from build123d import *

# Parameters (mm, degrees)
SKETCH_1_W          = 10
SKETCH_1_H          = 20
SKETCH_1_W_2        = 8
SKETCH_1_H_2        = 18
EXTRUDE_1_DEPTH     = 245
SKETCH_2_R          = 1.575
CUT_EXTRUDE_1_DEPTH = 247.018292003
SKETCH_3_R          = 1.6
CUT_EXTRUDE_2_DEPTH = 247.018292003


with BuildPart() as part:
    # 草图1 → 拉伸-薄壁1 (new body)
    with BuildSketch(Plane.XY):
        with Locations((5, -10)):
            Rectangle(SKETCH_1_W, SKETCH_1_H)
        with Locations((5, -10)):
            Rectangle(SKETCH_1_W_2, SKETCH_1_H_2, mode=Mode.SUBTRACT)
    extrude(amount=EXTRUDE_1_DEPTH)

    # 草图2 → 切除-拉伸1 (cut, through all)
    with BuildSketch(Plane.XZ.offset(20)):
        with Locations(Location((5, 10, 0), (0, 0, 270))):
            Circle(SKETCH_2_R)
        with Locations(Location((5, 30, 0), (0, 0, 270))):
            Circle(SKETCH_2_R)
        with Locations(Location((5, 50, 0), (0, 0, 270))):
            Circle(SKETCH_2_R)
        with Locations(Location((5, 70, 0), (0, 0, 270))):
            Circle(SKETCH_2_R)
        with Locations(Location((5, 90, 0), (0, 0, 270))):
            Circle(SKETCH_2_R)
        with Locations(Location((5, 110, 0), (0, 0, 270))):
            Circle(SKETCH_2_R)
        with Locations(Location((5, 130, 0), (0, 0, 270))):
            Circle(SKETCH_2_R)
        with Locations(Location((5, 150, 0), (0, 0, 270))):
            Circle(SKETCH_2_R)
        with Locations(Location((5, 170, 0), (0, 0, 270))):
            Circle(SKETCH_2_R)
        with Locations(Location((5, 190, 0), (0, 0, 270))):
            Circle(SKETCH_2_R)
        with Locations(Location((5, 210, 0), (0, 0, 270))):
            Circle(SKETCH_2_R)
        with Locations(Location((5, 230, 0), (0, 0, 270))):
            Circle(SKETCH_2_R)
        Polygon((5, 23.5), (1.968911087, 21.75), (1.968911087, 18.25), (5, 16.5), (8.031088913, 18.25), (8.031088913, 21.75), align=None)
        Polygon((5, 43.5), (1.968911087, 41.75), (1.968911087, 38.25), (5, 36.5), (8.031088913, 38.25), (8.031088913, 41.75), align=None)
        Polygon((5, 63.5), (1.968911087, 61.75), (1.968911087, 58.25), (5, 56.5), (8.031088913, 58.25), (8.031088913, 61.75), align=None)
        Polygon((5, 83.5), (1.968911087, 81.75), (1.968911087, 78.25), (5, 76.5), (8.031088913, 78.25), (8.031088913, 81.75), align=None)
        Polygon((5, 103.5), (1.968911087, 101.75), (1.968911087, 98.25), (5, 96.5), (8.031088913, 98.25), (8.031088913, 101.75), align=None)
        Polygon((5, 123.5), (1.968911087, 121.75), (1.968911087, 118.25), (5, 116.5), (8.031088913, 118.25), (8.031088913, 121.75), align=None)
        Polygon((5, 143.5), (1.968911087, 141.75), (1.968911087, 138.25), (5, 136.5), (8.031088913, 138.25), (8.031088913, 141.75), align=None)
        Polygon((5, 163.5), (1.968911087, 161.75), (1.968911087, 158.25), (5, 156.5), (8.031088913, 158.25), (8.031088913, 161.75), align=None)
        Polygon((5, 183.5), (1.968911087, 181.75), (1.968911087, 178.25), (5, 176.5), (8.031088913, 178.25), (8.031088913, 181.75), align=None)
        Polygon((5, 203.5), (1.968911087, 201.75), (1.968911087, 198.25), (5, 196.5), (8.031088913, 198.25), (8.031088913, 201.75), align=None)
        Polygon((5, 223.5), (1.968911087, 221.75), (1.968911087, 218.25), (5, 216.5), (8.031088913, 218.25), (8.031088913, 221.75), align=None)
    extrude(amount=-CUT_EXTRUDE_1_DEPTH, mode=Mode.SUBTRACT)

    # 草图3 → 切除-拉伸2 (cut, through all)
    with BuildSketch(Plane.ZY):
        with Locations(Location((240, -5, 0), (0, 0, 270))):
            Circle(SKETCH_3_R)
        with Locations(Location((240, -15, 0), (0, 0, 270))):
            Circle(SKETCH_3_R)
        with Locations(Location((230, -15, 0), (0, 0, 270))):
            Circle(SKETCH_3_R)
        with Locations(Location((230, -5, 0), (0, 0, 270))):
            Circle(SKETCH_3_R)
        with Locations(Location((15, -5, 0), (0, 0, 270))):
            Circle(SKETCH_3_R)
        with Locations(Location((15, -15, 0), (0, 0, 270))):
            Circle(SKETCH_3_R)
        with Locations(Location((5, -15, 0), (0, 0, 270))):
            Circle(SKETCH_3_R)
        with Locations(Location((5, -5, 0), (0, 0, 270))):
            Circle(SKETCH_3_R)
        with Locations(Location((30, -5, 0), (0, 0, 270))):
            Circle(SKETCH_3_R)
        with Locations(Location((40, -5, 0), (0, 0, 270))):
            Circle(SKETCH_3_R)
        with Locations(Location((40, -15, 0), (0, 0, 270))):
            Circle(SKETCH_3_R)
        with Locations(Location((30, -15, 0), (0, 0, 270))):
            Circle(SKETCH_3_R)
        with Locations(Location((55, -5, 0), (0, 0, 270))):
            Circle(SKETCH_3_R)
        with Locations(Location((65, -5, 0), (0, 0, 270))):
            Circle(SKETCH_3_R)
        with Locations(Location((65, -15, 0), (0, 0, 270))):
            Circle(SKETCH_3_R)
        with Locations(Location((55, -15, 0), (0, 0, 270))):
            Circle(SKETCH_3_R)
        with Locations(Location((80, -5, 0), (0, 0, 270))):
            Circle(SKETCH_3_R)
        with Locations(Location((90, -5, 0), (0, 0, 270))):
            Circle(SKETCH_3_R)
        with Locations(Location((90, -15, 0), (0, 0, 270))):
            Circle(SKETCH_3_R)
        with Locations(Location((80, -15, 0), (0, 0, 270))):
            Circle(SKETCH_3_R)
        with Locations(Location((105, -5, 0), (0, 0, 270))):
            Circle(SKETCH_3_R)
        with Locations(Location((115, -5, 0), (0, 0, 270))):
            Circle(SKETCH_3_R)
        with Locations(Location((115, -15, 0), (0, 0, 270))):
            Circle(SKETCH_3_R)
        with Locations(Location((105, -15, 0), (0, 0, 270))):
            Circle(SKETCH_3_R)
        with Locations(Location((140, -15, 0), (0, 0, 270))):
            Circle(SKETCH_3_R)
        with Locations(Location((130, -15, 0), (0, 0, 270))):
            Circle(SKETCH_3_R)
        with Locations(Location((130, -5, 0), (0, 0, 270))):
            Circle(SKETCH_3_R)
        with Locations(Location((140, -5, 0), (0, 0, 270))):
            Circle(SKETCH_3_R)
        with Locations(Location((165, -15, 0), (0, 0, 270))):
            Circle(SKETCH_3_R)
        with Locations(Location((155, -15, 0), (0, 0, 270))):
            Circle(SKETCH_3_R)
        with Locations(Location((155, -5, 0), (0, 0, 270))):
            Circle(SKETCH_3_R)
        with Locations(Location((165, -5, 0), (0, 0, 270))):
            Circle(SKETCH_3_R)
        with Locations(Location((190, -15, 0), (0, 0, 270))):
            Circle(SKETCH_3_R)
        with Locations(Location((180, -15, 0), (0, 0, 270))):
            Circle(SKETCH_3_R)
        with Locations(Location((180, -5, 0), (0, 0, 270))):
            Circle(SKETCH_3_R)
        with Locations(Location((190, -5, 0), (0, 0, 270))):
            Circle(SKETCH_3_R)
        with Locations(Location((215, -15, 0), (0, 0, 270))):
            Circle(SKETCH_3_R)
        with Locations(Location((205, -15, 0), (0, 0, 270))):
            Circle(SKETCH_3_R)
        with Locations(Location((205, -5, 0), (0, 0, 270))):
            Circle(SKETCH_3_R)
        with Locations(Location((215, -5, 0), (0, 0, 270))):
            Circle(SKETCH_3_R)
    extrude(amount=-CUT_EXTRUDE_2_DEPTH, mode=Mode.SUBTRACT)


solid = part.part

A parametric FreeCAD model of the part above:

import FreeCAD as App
import Part
import Sketcher

V = App.Vector
Q = App.Units.Quantity

doc = App.newDocument("Part")
body = doc.addObject("PartDesign::Body", "Body")

sketch1 = body.newObject("Sketcher::SketchObject", "Sketch")
sketch1.AttachmentSupport = (doc.getObject("XY_Plane"), [""])
sketch1.MapMode = "FlatFace"
sketch1.addGeometry([
    Part.LineSegment(V(0, 0, 0), V(0, -20, 0)),
    Part.LineSegment(V(0, -20, 0), V(10, -20, 0)),
    Part.LineSegment(V(10, -20, 0), V(10, 0, 0)),
    Part.LineSegment(V(10, 0, 0), V(0, 0, 0)),
    Part.LineSegment(V(9, -19, 0), V(1, -19, 0)),
    Part.LineSegment(V(1, -19, 0), V(1, -1, 0)),
    Part.LineSegment(V(1, -1, 0), V(9, -1, 0)),
    Part.LineSegment(V(9, -1, 0), V(9, -19, 0)),
], False)
sketch1.addConstraint([
    Sketcher.Constraint("Coincident", 0, 2, 1, 1),
    Sketcher.Constraint("Coincident", 1, 2, 2, 1),
    Sketcher.Constraint("Coincident", 2, 2, 3, 1),
    Sketcher.Constraint("Coincident", 3, 2, 0, 1),
    Sketcher.Constraint("Coincident", 4, 2, 5, 1),
    Sketcher.Constraint("Coincident", 5, 2, 6, 1),
    Sketcher.Constraint("Coincident", 6, 2, 7, 1),
    Sketcher.Constraint("Coincident", 7, 2, 4, 1),
    Sketcher.Constraint("Vertical", 0),
    Sketcher.Constraint("Horizontal", 1),
    Sketcher.Constraint("Vertical", 2),
    Sketcher.Constraint("Horizontal", 3),
    Sketcher.Constraint("Horizontal", 4),
    Sketcher.Constraint("Vertical", 5),
    Sketcher.Constraint("Horizontal", 6),
    Sketcher.Constraint("Vertical", 7),
    Sketcher.Constraint("Coincident", 3, 2, -1, 1),
    Sketcher.Constraint("DistanceX", 1, 1, 1, 2, 10.0),
    Sketcher.Constraint("DistanceX", 4, 2, 4, 1, 8.0),
    Sketcher.Constraint("DistanceY", 0, 2, 0, 1, 20.0),
    Sketcher.Constraint("DistanceY", 5, 1, 5, 2, 18.0),
    Sketcher.Constraint("DistanceX", -1, 1, 4, 2, 1.0),
    Sketcher.Constraint("DistanceY", 4, 2, -1, 1, 19.0),
])
pad1 = body.newObject("PartDesign::Pad", "Pad")
pad1.Profile = sketch1
pad1.Length = 245

sketch2 = body.newObject("Sketcher::SketchObject", "Sketch001")
sketch2.AttachmentSupport = (doc.getObject("XZ_Plane"), [""])
sketch2.MapMode = "FlatFace"
sketch2.AttachmentOffset = App.Placement(V(0, 0, 20), App.Rotation())
sketch2.addGeometry([
    Part.Circle(V(5, 10, 0), V(0, 0, 1), 1.6),
    Part.Circle(V(5, 30, 0), V(0, 0, 1), 1.6),
    Part.Circle(V(5, 50, 0), V(0, 0, 1), 1.6),
    Part.Circle(V(5, 70, 0), V(0, 0, 1), 1.6),
    Part.Circle(V(5, 90, 0), V(0, 0, 1), 1.6),
    Part.Circle(V(5, 110, 0), V(0, 0, 1), 1.6),
    Part.Circle(V(5, 130, 0), V(0, 0, 1), 1.6),
    Part.Circle(V(5, 150, 0), V(0, 0, 1), 1.6),
    Part.Circle(V(5, 170, 0), V(0, 0, 1), 1.6),
    Part.Circle(V(5, 190, 0), V(0, 0, 1), 1.6),
    Part.Circle(V(5, 210, 0), V(0, 0, 1), 1.6),
    Part.Circle(V(5, 230, 0), V(0, 0, 1), 1.6),
    Part.LineSegment(V(5, 23.5, 0), V(2, 21.8, 0)),
    Part.LineSegment(V(2, 21.8, 0), V(2, 18.2, 0)),
    Part.LineSegment(V(2, 18.2, 0), V(5, 16.5, 0)),
    Part.LineSegment(V(5, 16.5, 0), V(8, 18.2, 0)),
    Part.LineSegment(V(8, 18.2, 0), V(8, 21.8, 0)),
    Part.LineSegment(V(8, 21.8, 0), V(5, 23.5, 0)),
    Part.LineSegment(V(5, 43.5, 0), V(2, 41.8, 0)),
    Part.LineSegment(V(2, 41.8, 0), V(2, 38.2, 0)),
    Part.LineSegment(V(2, 38.2, 0), V(5, 36.5, 0)),
    Part.LineSegment(V(5, 36.5, 0), V(8, 38.2, 0)),
    Part.LineSegment(V(8, 38.2, 0), V(8, 41.8, 0)),
    Part.LineSegment(V(8, 41.8, 0), V(5, 43.5, 0)),
    Part.LineSegment(V(5, 63.5, 0), V(2, 61.8, 0)),
    Part.LineSegment(V(2, 61.8, 0), V(2, 58.2, 0)),
    Part.LineSegment(V(2, 58.2, 0), V(5, 56.5, 0)),
    Part.LineSegment(V(5, 56.5, 0), V(8, 58.2, 0)),
    Part.LineSegment(V(8, 58.2, 0), V(8, 61.8, 0)),
    Part.LineSegment(V(8, 61.8, 0), V(5, 63.5, 0)),
    Part.LineSegment(V(5, 83.5, 0), V(2, 81.8, 0)),
    Part.LineSegment(V(2, 81.8, 0), V(2, 78.2, 0)),
    Part.LineSegment(V(2, 78.2, 0), V(5, 76.5, 0)),
    Part.LineSegment(V(5, 76.5, 0), V(8, 78.2, 0)),
    Part.LineSegment(V(8, 78.2, 0), V(8, 81.8, 0)),
    Part.LineSegment(V(8, 81.8, 0), V(5, 83.5, 0)),
    Part.LineSegment(V(5, 103.5, 0), V(2, 101.8, 0)),
    Part.LineSegment(V(2, 101.8, 0), V(2, 98.2, 0)),
    Part.LineSegment(V(2, 98.2, 0), V(5, 96.5, 0)),
    Part.LineSegment(V(5, 96.5, 0), V(8, 98.2, 0)),
    Part.LineSegment(V(8, 98.2, 0), V(8, 101.8, 0)),
    Part.LineSegment(V(8, 101.8, 0), V(5, 103.5, 0)),
    Part.LineSegment(V(5, 123.5, 0), V(2, 121.8, 0)),
    Part.LineSegment(V(2, 121.8, 0), V(2, 118.2, 0)),
    Part.LineSegment(V(2, 118.2, 0), V(5, 116.5, 0)),
    Part.LineSegment(V(5, 116.5, 0), V(8, 118.2, 0)),
    Part.LineSegment(V(8, 118.2, 0), V(8, 121.8, 0)),
    Part.LineSegment(V(8, 121.8, 0), V(5, 123.5, 0)),
    Part.LineSegment(V(5, 143.5, 0), V(2, 141.8, 0)),
    Part.LineSegment(V(2, 141.8, 0), V(2, 138.2, 0)),
    Part.LineSegment(V(2, 138.2, 0), V(5, 136.5, 0)),
    Part.LineSegment(V(5, 136.5, 0), V(8, 138.2, 0)),
    Part.LineSegment(V(8, 138.2, 0), V(8, 141.8, 0)),
    Part.LineSegment(V(8, 141.8, 0), V(5, 143.5, 0)),
    Part.LineSegment(V(5, 163.5, 0), V(2, 161.8, 0)),
    Part.LineSegment(V(2, 161.8, 0), V(2, 158.2, 0)),
    Part.LineSegment(V(2, 158.2, 0), V(5, 156.5, 0)),
    Part.LineSegment(V(5, 156.5, 0), V(8, 158.2, 0)),
    Part.LineSegment(V(8, 158.2, 0), V(8, 161.8, 0)),
    Part.LineSegment(V(8, 161.8, 0), V(5, 163.5, 0)),
    Part.LineSegment(V(5, 183.5, 0), V(2, 181.8, 0)),
    Part.LineSegment(V(2, 181.8, 0), V(2, 178.2, 0)),
    Part.LineSegment(V(2, 178.2, 0), V(5, 176.5, 0)),
    Part.LineSegment(V(5, 176.5, 0), V(8, 178.2, 0)),
    Part.LineSegment(V(8, 178.2, 0), V(8, 181.8, 0)),
    Part.LineSegment(V(8, 181.8, 0), V(5, 183.5, 0)),
    Part.LineSegment(V(5, 203.5, 0), V(2, 201.8, 0)),
    Part.LineSegment(V(2, 201.8, 0), V(2, 198.2, 0)),
    Part.LineSegment(V(2, 198.2, 0), V(5, 196.5, 0)),
    Part.LineSegment(V(5, 196.5, 0), V(8, 198.2, 0)),
    Part.LineSegment(V(8, 198.2, 0), V(8, 201.8, 0)),
    Part.LineSegment(V(8, 201.8, 0), V(5, 203.5, 0)),
    Part.LineSegment(V(5, 223.5, 0), V(2, 221.8, 0)),
    Part.LineSegment(V(2, 221.8, 0), V(2, 218.2, 0)),
    Part.LineSegment(V(2, 218.2, 0), V(5, 216.5, 0)),
    Part.LineSegment(V(5, 216.5, 0), V(8, 218.2, 0)),
    Part.LineSegment(V(8, 218.2, 0), V(8, 221.8, 0)),
    Part.LineSegment(V(8, 221.8, 0), V(5, 223.5, 0)),
], False)
sketch2.addConstraint([
    Sketcher.Constraint("Coincident", 12, 2, 13, 1),
    Sketcher.Constraint("Coincident", 13, 2, 14, 1),
    Sketcher.Constraint("Coincident", 14, 2, 15, 1),
    Sketcher.Constraint("Coincident", 15, 2, 16, 1),
    Sketcher.Constraint("Coincident", 16, 2, 17, 1),
    Sketcher.Constraint("Coincident", 17, 2, 12, 1),
    Sketcher.Constraint("Coincident", 18, 2, 19, 1),
    Sketcher.Constraint("Coincident", 19, 2, 20, 1),
    Sketcher.Constraint("Coincident", 20, 2, 21, 1),
    Sketcher.Constraint("Coincident", 21, 2, 22, 1),
    Sketcher.Constraint("Coincident", 22, 2, 23, 1),
    Sketcher.Constraint("Coincident", 23, 2, 18, 1),
    Sketcher.Constraint("Coincident", 24, 2, 25, 1),
    Sketcher.Constraint("Coincident", 25, 2, 26, 1),
    Sketcher.Constraint("Coincident", 26, 2, 27, 1),
    Sketcher.Constraint("Coincident", 27, 2, 28, 1),
    Sketcher.Constraint("Coincident", 28, 2, 29, 1),
    Sketcher.Constraint("Coincident", 29, 2, 24, 1),
    Sketcher.Constraint("Coincident", 30, 2, 31, 1),
    Sketcher.Constraint("Coincident", 31, 2, 32, 1),
    Sketcher.Constraint("Coincident", 32, 2, 33, 1),
    Sketcher.Constraint("Coincident", 33, 2, 34, 1),
    Sketcher.Constraint("Coincident", 34, 2, 35, 1),
    Sketcher.Constraint("Coincident", 35, 2, 30, 1),
    Sketcher.Constraint("Coincident", 36, 2, 37, 1),
    Sketcher.Constraint("Coincident", 37, 2, 38, 1),
    Sketcher.Constraint("Coincident", 38, 2, 39, 1),
    Sketcher.Constraint("Coincident", 39, 2, 40, 1),
    Sketcher.Constraint("Coincident", 40, 2, 41, 1),
    Sketcher.Constraint("Coincident", 41, 2, 36, 1),
    Sketcher.Constraint("Coincident", 42, 2, 43, 1),
    Sketcher.Constraint("Coincident", 43, 2, 44, 1),
    Sketcher.Constraint("Coincident", 44, 2, 45, 1),
    Sketcher.Constraint("Coincident", 45, 2, 46, 1),
    Sketcher.Constraint("Coincident", 46, 2, 47, 1),
    Sketcher.Constraint("Coincident", 47, 2, 42, 1),
    Sketcher.Constraint("Coincident", 48, 2, 49, 1),
    Sketcher.Constraint("Coincident", 49, 2, 50, 1),
    Sketcher.Constraint("Coincident", 50, 2, 51, 1),
    Sketcher.Constraint("Coincident", 51, 2, 52, 1),
    Sketcher.Constraint("Coincident", 52, 2, 53, 1),
    Sketcher.Constraint("Coincident", 53, 2, 48, 1),
    Sketcher.Constraint("Coincident", 54, 2, 55, 1),
    Sketcher.Constraint("Coincident", 55, 2, 56, 1),
    Sketcher.Constraint("Coincident", 56, 2, 57, 1),
    Sketcher.Constraint("Coincident", 57, 2, 58, 1),
    Sketcher.Constraint("Coincident", 58, 2, 59, 1),
    Sketcher.Constraint("Coincident", 59, 2, 54, 1),
    Sketcher.Constraint("Coincident", 60, 2, 61, 1),
    Sketcher.Constraint("Coincident", 61, 2, 62, 1),
    Sketcher.Constraint("Coincident", 62, 2, 63, 1),
    Sketcher.Constraint("Coincident", 63, 2, 64, 1),
    Sketcher.Constraint("Coincident", 64, 2, 65, 1),
    Sketcher.Constraint("Coincident", 65, 2, 60, 1),
    Sketcher.Constraint("Coincident", 66, 2, 67, 1),
    Sketcher.Constraint("Coincident", 67, 2, 68, 1),
    Sketcher.Constraint("Coincident", 68, 2, 69, 1),
    Sketcher.Constraint("Coincident", 69, 2, 70, 1),
    Sketcher.Constraint("Coincident", 70, 2, 71, 1),
    Sketcher.Constraint("Coincident", 71, 2, 66, 1),
    Sketcher.Constraint("Coincident", 72, 2, 73, 1),
    Sketcher.Constraint("Coincident", 73, 2, 74, 1),
    Sketcher.Constraint("Coincident", 74, 2, 75, 1),
    Sketcher.Constraint("Coincident", 75, 2, 76, 1),
    Sketcher.Constraint("Coincident", 76, 2, 77, 1),
    Sketcher.Constraint("Coincident", 77, 2, 72, 1),
    Sketcher.Constraint("Vertical", 13),
    Sketcher.Constraint("Vertical", 16),
    Sketcher.Constraint("Vertical", 19),
    Sketcher.Constraint("Vertical", 22),
    Sketcher.Constraint("Vertical", 25),
    Sketcher.Constraint("Vertical", 28),
    Sketcher.Constraint("Vertical", 31),
    Sketcher.Constraint("Vertical", 34),
    Sketcher.Constraint("Vertical", 37),
    Sketcher.Constraint("Vertical", 40),
    Sketcher.Constraint("Vertical", 43),
    Sketcher.Constraint("Vertical", 46),
    Sketcher.Constraint("Vertical", 49),
    Sketcher.Constraint("Vertical", 52),
    Sketcher.Constraint("Vertical", 55),
    Sketcher.Constraint("Vertical", 58),
    Sketcher.Constraint("Vertical", 61),
    Sketcher.Constraint("Vertical", 64),
    Sketcher.Constraint("Vertical", 67),
    Sketcher.Constraint("Vertical", 70),
    Sketcher.Constraint("Vertical", 73),
    Sketcher.Constraint("Vertical", 76),
    Sketcher.Constraint("Equal", 0, 1),
    Sketcher.Constraint("Equal", 1, 2),
    Sketcher.Constraint("Equal", 2, 3),
    Sketcher.Constraint("Equal", 3, 4),
    Sketcher.Constraint("Equal", 4, 5),
    Sketcher.Constraint("Equal", 5, 6),
    Sketcher.Constraint("Equal", 6, 7),
    Sketcher.Constraint("Equal", 7, 8),
    Sketcher.Constraint("Equal", 8, 9),
    Sketcher.Constraint("Equal", 9, 10),
    Sketcher.Constraint("Equal", 10, 11),
    Sketcher.Constraint("Parallel", 12, 15),
    Sketcher.Constraint("Parallel", 14, 17),
    Sketcher.Constraint("Parallel", 15, 18),
    Sketcher.Constraint("Parallel", 17, 20),
    Sketcher.Constraint("Parallel", 18, 21),
    Sketcher.Constraint("Parallel", 20, 23),
    Sketcher.Constraint("Parallel", 21, 24),
    Sketcher.Constraint("Parallel", 23, 26),
    Sketcher.Constraint("Parallel", 24, 27),
    Sketcher.Constraint("Parallel", 26, 29),
    Sketcher.Constraint("Parallel", 27, 30),
    Sketcher.Constraint("Parallel", 29, 32),
    Sketcher.Constraint("Parallel", 30, 33),
    Sketcher.Constraint("Parallel", 32, 35),
    Sketcher.Constraint("Parallel", 33, 36),
    Sketcher.Constraint("Parallel", 35, 38),
    Sketcher.Constraint("Parallel", 36, 39),
    Sketcher.Constraint("Parallel", 38, 41),
    Sketcher.Constraint("Parallel", 39, 42),
    Sketcher.Constraint("Parallel", 41, 44),
    Sketcher.Constraint("Parallel", 42, 45),
    Sketcher.Constraint("Parallel", 44, 47),
    Sketcher.Constraint("Parallel", 45, 48),
    Sketcher.Constraint("Parallel", 47, 50),
    Sketcher.Constraint("Parallel", 48, 51),
    Sketcher.Constraint("Parallel", 50, 53),
    Sketcher.Constraint("Parallel", 51, 54),
    Sketcher.Constraint("Parallel", 53, 56),
    Sketcher.Constraint("Parallel", 54, 57),
    Sketcher.Constraint("Parallel", 56, 59),
    Sketcher.Constraint("Parallel", 57, 60),
    Sketcher.Constraint("Parallel", 59, 62),
    Sketcher.Constraint("Parallel", 60, 63),
    Sketcher.Constraint("Parallel", 62, 65),
    Sketcher.Constraint("Parallel", 63, 66),
    Sketcher.Constraint("Parallel", 65, 68),
    Sketcher.Constraint("Parallel", 66, 69),
    Sketcher.Constraint("Parallel", 68, 71),
    Sketcher.Constraint("Parallel", 69, 72),
    Sketcher.Constraint("Parallel", 71, 74),
    Sketcher.Constraint("Parallel", 72, 75),
    Sketcher.Constraint("Parallel", 74, 77),
    Sketcher.Constraint("Horizontal", 13, 2, 15, 2),
    Sketcher.Constraint("Horizontal", 12, 2, 16, 2),
    Sketcher.Constraint("Horizontal", 19, 2, 21, 2),
    Sketcher.Constraint("Horizontal", 18, 2, 22, 2),
    Sketcher.Constraint("Horizontal", 25, 2, 27, 2),
    Sketcher.Constraint("Horizontal", 24, 2, 28, 2),
    Sketcher.Constraint("Horizontal", 31, 2, 33, 2),
    Sketcher.Constraint("Horizontal", 30, 2, 34, 2),
    Sketcher.Constraint("Horizontal", 37, 2, 39, 2),
    Sketcher.Constraint("Horizontal", 36, 2, 40, 2),
    Sketcher.Constraint("Horizontal", 43, 2, 45, 2),
    Sketcher.Constraint("Horizontal", 42, 2, 46, 2),
    Sketcher.Constraint("Horizontal", 49, 2, 51, 2),
    Sketcher.Constraint("Horizontal", 48, 2, 52, 2),
    Sketcher.Constraint("Horizontal", 55, 2, 57, 2),
    Sketcher.Constraint("Horizontal", 54, 2, 58, 2),
    Sketcher.Constraint("Horizontal", 61, 2, 63, 2),
    Sketcher.Constraint("Horizontal", 60, 2, 64, 2),
    Sketcher.Constraint("Horizontal", 67, 2, 69, 2),
    Sketcher.Constraint("Horizontal", 66, 2, 70, 2),
    Sketcher.Constraint("Horizontal", 73, 2, 75, 2),
    Sketcher.Constraint("Horizontal", 72, 2, 76, 2),
    Sketcher.Constraint("Vertical", 0, 3, 1, 3),
    Sketcher.Constraint("Vertical", 1, 3, 2, 3),
    Sketcher.Constraint("Vertical", 2, 3, 3, 3),
    Sketcher.Constraint("Vertical", 3, 3, 4, 3),
    Sketcher.Constraint("Vertical", 4, 3, 5, 3),
    Sketcher.Constraint("Vertical", 5, 3, 6, 3),
    Sketcher.Constraint("Vertical", 6, 3, 7, 3),
    Sketcher.Constraint("Vertical", 7, 3, 8, 3),
    Sketcher.Constraint("Vertical", 8, 3, 9, 3),
    Sketcher.Constraint("Vertical", 9, 3, 10, 3),
    Sketcher.Constraint("Vertical", 10, 3, 11, 3),
    Sketcher.Constraint("Vertical", 11, 3, 14, 2),
    Sketcher.Constraint("Vertical", 14, 2, 17, 2),
    Sketcher.Constraint("Vertical", 13, 2, 18, 2),
    Sketcher.Constraint("Vertical", 17, 2, 20, 2),
    Sketcher.Constraint("Vertical", 19, 2, 24, 2),
    Sketcher.Constraint("Vertical", 23, 2, 26, 2),
    Sketcher.Constraint("Vertical", 25, 2, 30, 2),
    Sketcher.Constraint("Vertical", 29, 2, 32, 2),
    Sketcher.Constraint("Vertical", 31, 2, 36, 2),
    Sketcher.Constraint("Vertical", 35, 2, 38, 2),
    Sketcher.Constraint("Vertical", 37, 2, 42, 2),
    Sketcher.Constraint("Vertical", 41, 2, 44, 2),
    Sketcher.Constraint("Vertical", 43, 2, 48, 2),
    Sketcher.Constraint("Vertical", 47, 2, 50, 2),
    Sketcher.Constraint("Vertical", 49, 2, 54, 2),
    Sketcher.Constraint("Vertical", 53, 2, 56, 2),
    Sketcher.Constraint("Vertical", 55, 2, 60, 2),
    Sketcher.Constraint("Vertical", 59, 2, 62, 2),
    Sketcher.Constraint("Vertical", 61, 2, 66, 2),
    Sketcher.Constraint("Vertical", 65, 2, 68, 2),
    Sketcher.Constraint("Vertical", 67, 2, 72, 2),
    Sketcher.Constraint("Vertical", 71, 2, 74, 2),
    Sketcher.Constraint("Equal", 16, 19),
    Sketcher.Constraint("Equal", 22, 25),
    Sketcher.Constraint("Equal", 28, 31),
    Sketcher.Constraint("Equal", 34, 37),
    Sketcher.Constraint("Equal", 40, 43),
    Sketcher.Constraint("Equal", 46, 49),
    Sketcher.Constraint("Equal", 52, 55),
    Sketcher.Constraint("Equal", 58, 61),
    Sketcher.Constraint("Equal", 64, 67),
    Sketcher.Constraint("Equal", 70, 73),
    Sketcher.Constraint("Diameter", 0, 3.15),
    Sketcher.Constraint("Angle", 12, Q("-150 deg")),
    Sketcher.Constraint("DistanceY", 13, 2, 13, 1, 3.5),
    Sketcher.Constraint("DistanceX", -1, 1, 0, 3, 5.0),
    Sketcher.Constraint("DistanceY", -1, 1, 0, 3, 10.0),
    Sketcher.Constraint("DistanceY", -1, 1, 1, 3, 30.0),
    Sketcher.Constraint("DistanceY", -1, 1, 2, 3, 50.0),
    Sketcher.Constraint("DistanceY", -1, 1, 3, 3, 70.0),
    Sketcher.Constraint("DistanceY", -1, 1, 4, 3, 90.0),
    Sketcher.Constraint("DistanceY", -1, 1, 5, 3, 110.0),
    Sketcher.Constraint("DistanceY", -1, 1, 6, 3, 130.0),
    Sketcher.Constraint("DistanceY", -1, 1, 7, 3, 150.0),
    Sketcher.Constraint("DistanceY", -1, 1, 8, 3, 170.0),
    Sketcher.Constraint("DistanceY", -1, 1, 9, 3, 190.0),
    Sketcher.Constraint("DistanceY", -1, 1, 10, 3, 210.0),
    Sketcher.Constraint("DistanceY", -1, 1, 11, 3, 230.0),
    Sketcher.Constraint("Distance", 12, 3.5),
    Sketcher.Constraint("DistanceY", -1, 1, 14, 2, 16.5),
    Sketcher.Constraint("DistanceY", -1, 1, 20, 2, 36.5),
    Sketcher.Constraint("DistanceY", -1, 1, 26, 2, 56.5),
    Sketcher.Constraint("DistanceY", -1, 1, 32, 2, 76.5),
    Sketcher.Constraint("DistanceY", -1, 1, 38, 2, 96.5),
    Sketcher.Constraint("DistanceY", -1, 1, 44, 2, 116.5),
    Sketcher.Constraint("DistanceY", -1, 1, 50, 2, 136.5),
    Sketcher.Constraint("DistanceY", -1, 1, 56, 2, 156.5),
    Sketcher.Constraint("DistanceY", -1, 1, 62, 2, 176.5),
    Sketcher.Constraint("DistanceY", -1, 1, 68, 2, 196.5),
    Sketcher.Constraint("DistanceY", -1, 1, 74, 2, 216.5),
])
pocket1 = body.newObject("PartDesign::Pocket", "Pocket")
pocket1.Profile = sketch2
pocket1.Type = "ThroughAll"

sketch3 = body.newObject("Sketcher::SketchObject", "Sketch002")
sketch3.AttachmentSupport = (doc.getObject("YZ_Plane"), [""])
sketch3.MapMode = "FlatFace"
sketch3.addGeometry([
    Part.Circle(V(-5, 240, 0), V(0, 0, 1), 1.6),
    Part.Circle(V(-15, 240, 0), V(0, 0, 1), 1.6),
    Part.Circle(V(-15, 230, 0), V(0, 0, 1), 1.6),
    Part.Circle(V(-5, 230, 0), V(0, 0, 1), 1.6),
    Part.Circle(V(-5, 15, 0), V(0, 0, 1), 1.6),
    Part.Circle(V(-15, 15, 0), V(0, 0, 1), 1.6),
    Part.Circle(V(-15, 5, 0), V(0, 0, 1), 1.6),
    Part.Circle(V(-5, 5, 0), V(0, 0, 1), 1.6),
    Part.Circle(V(-5, 30, 0), V(0, 0, 1), 1.6),
    Part.Circle(V(-5, 40, 0), V(0, 0, 1), 1.6),
    Part.Circle(V(-15, 40, 0), V(0, 0, 1), 1.6),
    Part.Circle(V(-15, 30, 0), V(0, 0, 1), 1.6),
    Part.Circle(V(-5, 55, 0), V(0, 0, 1), 1.6),
    Part.Circle(V(-5, 65, 0), V(0, 0, 1), 1.6),
    Part.Circle(V(-15, 65, 0), V(0, 0, 1), 1.6),
    Part.Circle(V(-15, 55, 0), V(0, 0, 1), 1.6),
    Part.Circle(V(-5, 80, 0), V(0, 0, 1), 1.6),
    Part.Circle(V(-5, 90, 0), V(0, 0, 1), 1.6),
    Part.Circle(V(-15, 90, 0), V(0, 0, 1), 1.6),
    Part.Circle(V(-15, 80, 0), V(0, 0, 1), 1.6),
    Part.Circle(V(-5, 105, 0), V(0, 0, 1), 1.6),
    Part.Circle(V(-5, 115, 0), V(0, 0, 1), 1.6),
    Part.Circle(V(-15, 115, 0), V(0, 0, 1), 1.6),
    Part.Circle(V(-15, 105, 0), V(0, 0, 1), 1.6),
    Part.Circle(V(-15, 140, 0), V(0, 0, 1), 1.6),
    Part.Circle(V(-15, 130, 0), V(0, 0, 1), 1.6),
    Part.Circle(V(-5, 130, 0), V(0, 0, 1), 1.6),
    Part.Circle(V(-5, 140, 0), V(0, 0, 1), 1.6),
    Part.Circle(V(-15, 165, 0), V(0, 0, 1), 1.6),
    Part.Circle(V(-15, 155, 0), V(0, 0, 1), 1.6),
    Part.Circle(V(-5, 155, 0), V(0, 0, 1), 1.6),
    Part.Circle(V(-5, 165, 0), V(0, 0, 1), 1.6),
    Part.Circle(V(-15, 190, 0), V(0, 0, 1), 1.6),
    Part.Circle(V(-15, 180, 0), V(0, 0, 1), 1.6),
    Part.Circle(V(-5, 180, 0), V(0, 0, 1), 1.6),
    Part.Circle(V(-5, 190, 0), V(0, 0, 1), 1.6),
    Part.Circle(V(-15, 215, 0), V(0, 0, 1), 1.6),
    Part.Circle(V(-15, 205, 0), V(0, 0, 1), 1.6),
    Part.Circle(V(-5, 205, 0), V(0, 0, 1), 1.6),
    Part.Circle(V(-5, 215, 0), V(0, 0, 1), 1.6),
], False)
sketch3.addConstraint([
    Sketcher.Constraint("Equal", 0, 1),
    Sketcher.Constraint("Equal", 1, 2),
    Sketcher.Constraint("Equal", 2, 3),
    Sketcher.Constraint("Equal", 3, 4),
    Sketcher.Constraint("Equal", 4, 5),
    Sketcher.Constraint("Equal", 5, 6),
    Sketcher.Constraint("Equal", 6, 7),
    Sketcher.Constraint("Equal", 7, 8),
    Sketcher.Constraint("Equal", 8, 9),
    Sketcher.Constraint("Equal", 9, 10),
    Sketcher.Constraint("Equal", 10, 11),
    Sketcher.Constraint("Equal", 11, 12),
    Sketcher.Constraint("Equal", 12, 13),
    Sketcher.Constraint("Equal", 13, 14),
    Sketcher.Constraint("Equal", 14, 15),
    Sketcher.Constraint("Equal", 15, 16),
    Sketcher.Constraint("Equal", 16, 17),
    Sketcher.Constraint("Equal", 17, 18),
    Sketcher.Constraint("Equal", 18, 19),
    Sketcher.Constraint("Equal", 19, 20),
    Sketcher.Constraint("Equal", 20, 21),
    Sketcher.Constraint("Equal", 21, 22),
    Sketcher.Constraint("Equal", 22, 23),
    Sketcher.Constraint("Equal", 23, 24),
    Sketcher.Constraint("Equal", 24, 25),
    Sketcher.Constraint("Equal", 25, 26),
    Sketcher.Constraint("Equal", 26, 27),
    Sketcher.Constraint("Equal", 27, 28),
    Sketcher.Constraint("Equal", 28, 29),
    Sketcher.Constraint("Equal", 29, 30),
    Sketcher.Constraint("Equal", 30, 31),
    Sketcher.Constraint("Equal", 31, 32),
    Sketcher.Constraint("Equal", 32, 33),
    Sketcher.Constraint("Equal", 33, 34),
    Sketcher.Constraint("Equal", 34, 35),
    Sketcher.Constraint("Equal", 35, 36),
    Sketcher.Constraint("Equal", 36, 37),
    Sketcher.Constraint("Equal", 37, 38),
    Sketcher.Constraint("Equal", 38, 39),
    Sketcher.Constraint("Horizontal", 0, 3, 1, 3),
    Sketcher.Constraint("Horizontal", 2, 3, 3, 3),
    Sketcher.Constraint("Horizontal", 4, 3, 5, 3),
    Sketcher.Constraint("Horizontal", 6, 3, 7, 3),
    Sketcher.Constraint("Horizontal", 9, 3, 10, 3),
    Sketcher.Constraint("Horizontal", 8, 3, 11, 3),
    Sketcher.Constraint("Horizontal", 13, 3, 14, 3),
    Sketcher.Constraint("Horizontal", 12, 3, 15, 3),
    Sketcher.Constraint("Horizontal", 17, 3, 18, 3),
    Sketcher.Constraint("Horizontal", 16, 3, 19, 3),
    Sketcher.Constraint("Horizontal", 21, 3, 22, 3),
    Sketcher.Constraint("Horizontal", 20, 3, 23, 3),
    Sketcher.Constraint("Horizontal", 25, 3, 26, 3),
    Sketcher.Constraint("Horizontal", 24, 3, 27, 3),
    Sketcher.Constraint("Horizontal", 29, 3, 30, 3),
    Sketcher.Constraint("Horizontal", 28, 3, 31, 3),
    Sketcher.Constraint("Horizontal", 33, 3, 34, 3),
    Sketcher.Constraint("Horizontal", 32, 3, 35, 3),
    Sketcher.Constraint("Horizontal", 37, 3, 38, 3),
    Sketcher.Constraint("Horizontal", 36, 3, 39, 3),
    Sketcher.Constraint("Vertical", 1, 3, 2, 3),
    Sketcher.Constraint("Vertical", 0, 3, 3, 3),
    Sketcher.Constraint("Vertical", 3, 3, 4, 3),
    Sketcher.Constraint("Vertical", 2, 3, 5, 3),
    Sketcher.Constraint("Vertical", 5, 3, 6, 3),
    Sketcher.Constraint("Vertical", 4, 3, 7, 3),
    Sketcher.Constraint("Vertical", 7, 3, 8, 3),
    Sketcher.Constraint("Vertical", 8, 3, 9, 3),
    Sketcher.Constraint("Vertical", 6, 3, 10, 3),
    Sketcher.Constraint("Vertical", 10, 3, 11, 3),
    Sketcher.Constraint("Vertical", 9, 3, 12, 3),
    Sketcher.Constraint("Vertical", 12, 3, 13, 3),
    Sketcher.Constraint("Vertical", 11, 3, 14, 3),
    Sketcher.Constraint("Vertical", 14, 3, 15, 3),
    Sketcher.Constraint("Vertical", 13, 3, 16, 3),
    Sketcher.Constraint("Vertical", 16, 3, 17, 3),
    Sketcher.Constraint("Vertical", 15, 3, 18, 3),
    Sketcher.Constraint("Vertical", 18, 3, 19, 3),
    Sketcher.Constraint("Vertical", 17, 3, 20, 3),
    Sketcher.Constraint("Vertical", 20, 3, 21, 3),
    Sketcher.Constraint("Vertical", 19, 3, 22, 3),
    Sketcher.Constraint("Vertical", 22, 3, 23, 3),
    Sketcher.Constraint("Vertical", 23, 3, 24, 3),
    Sketcher.Constraint("Vertical", 24, 3, 25, 3),
    Sketcher.Constraint("Vertical", 21, 3, 26, 3),
    Sketcher.Constraint("Vertical", 26, 3, 27, 3),
    Sketcher.Constraint("Vertical", 25, 3, 28, 3),
    Sketcher.Constraint("Vertical", 28, 3, 29, 3),
    Sketcher.Constraint("Vertical", 27, 3, 30, 3),
    Sketcher.Constraint("Vertical", 30, 3, 31, 3),
    Sketcher.Constraint("Vertical", 29, 3, 32, 3),
    Sketcher.Constraint("Vertical", 32, 3, 33, 3),
    Sketcher.Constraint("Vertical", 31, 3, 34, 3),
    Sketcher.Constraint("Vertical", 34, 3, 35, 3),
    Sketcher.Constraint("Vertical", 33, 3, 36, 3),
    Sketcher.Constraint("Vertical", 36, 3, 37, 3),
    Sketcher.Constraint("Vertical", 35, 3, 38, 3),
    Sketcher.Constraint("Vertical", 38, 3, 39, 3),
    Sketcher.Constraint("Diameter", 0, 3.2),
    Sketcher.Constraint("DistanceX", 0, 3, -1, 1, 5.0),
    Sketcher.Constraint("DistanceY", -1, 1, 0, 3, 240.0),
    Sketcher.Constraint("DistanceX", 1, 3, -1, 1, 15.0),
    Sketcher.Constraint("DistanceY", -1, 1, 2, 3, 230.0),
    Sketcher.Constraint("DistanceY", -1, 1, 4, 3, 15.0),
    Sketcher.Constraint("DistanceY", -1, 1, 6, 3, 5.0),
    Sketcher.Constraint("DistanceY", -1, 1, 8, 3, 30.0),
    Sketcher.Constraint("DistanceY", -1, 1, 9, 3, 40.0),
    Sketcher.Constraint("DistanceY", -1, 1, 12, 3, 55.0),
    Sketcher.Constraint("DistanceY", -1, 1, 13, 3, 65.0),
    Sketcher.Constraint("DistanceY", -1, 1, 16, 3, 80.0),
    Sketcher.Constraint("DistanceY", -1, 1, 17, 3, 90.0),
    Sketcher.Constraint("DistanceY", -1, 1, 20, 3, 105.0),
    Sketcher.Constraint("DistanceY", -1, 1, 21, 3, 115.0),
    Sketcher.Constraint("DistanceY", -1, 1, 24, 3, 140.0),
    Sketcher.Constraint("DistanceY", -1, 1, 25, 3, 130.0),
    Sketcher.Constraint("DistanceY", -1, 1, 28, 3, 165.0),
    Sketcher.Constraint("DistanceY", -1, 1, 29, 3, 155.0),
    Sketcher.Constraint("DistanceY", -1, 1, 32, 3, 190.0),
    Sketcher.Constraint("DistanceY", -1, 1, 33, 3, 180.0),
    Sketcher.Constraint("DistanceY", -1, 1, 36, 3, 215.0),
    Sketcher.Constraint("DistanceY", -1, 1, 37, 3, 205.0),
])
pocket2 = body.newObject("PartDesign::Pocket", "Pocket001")
pocket2.Profile = sketch3
pocket2.Type = "ThroughAll"
pocket2.Reversed = True

doc.recompute()
